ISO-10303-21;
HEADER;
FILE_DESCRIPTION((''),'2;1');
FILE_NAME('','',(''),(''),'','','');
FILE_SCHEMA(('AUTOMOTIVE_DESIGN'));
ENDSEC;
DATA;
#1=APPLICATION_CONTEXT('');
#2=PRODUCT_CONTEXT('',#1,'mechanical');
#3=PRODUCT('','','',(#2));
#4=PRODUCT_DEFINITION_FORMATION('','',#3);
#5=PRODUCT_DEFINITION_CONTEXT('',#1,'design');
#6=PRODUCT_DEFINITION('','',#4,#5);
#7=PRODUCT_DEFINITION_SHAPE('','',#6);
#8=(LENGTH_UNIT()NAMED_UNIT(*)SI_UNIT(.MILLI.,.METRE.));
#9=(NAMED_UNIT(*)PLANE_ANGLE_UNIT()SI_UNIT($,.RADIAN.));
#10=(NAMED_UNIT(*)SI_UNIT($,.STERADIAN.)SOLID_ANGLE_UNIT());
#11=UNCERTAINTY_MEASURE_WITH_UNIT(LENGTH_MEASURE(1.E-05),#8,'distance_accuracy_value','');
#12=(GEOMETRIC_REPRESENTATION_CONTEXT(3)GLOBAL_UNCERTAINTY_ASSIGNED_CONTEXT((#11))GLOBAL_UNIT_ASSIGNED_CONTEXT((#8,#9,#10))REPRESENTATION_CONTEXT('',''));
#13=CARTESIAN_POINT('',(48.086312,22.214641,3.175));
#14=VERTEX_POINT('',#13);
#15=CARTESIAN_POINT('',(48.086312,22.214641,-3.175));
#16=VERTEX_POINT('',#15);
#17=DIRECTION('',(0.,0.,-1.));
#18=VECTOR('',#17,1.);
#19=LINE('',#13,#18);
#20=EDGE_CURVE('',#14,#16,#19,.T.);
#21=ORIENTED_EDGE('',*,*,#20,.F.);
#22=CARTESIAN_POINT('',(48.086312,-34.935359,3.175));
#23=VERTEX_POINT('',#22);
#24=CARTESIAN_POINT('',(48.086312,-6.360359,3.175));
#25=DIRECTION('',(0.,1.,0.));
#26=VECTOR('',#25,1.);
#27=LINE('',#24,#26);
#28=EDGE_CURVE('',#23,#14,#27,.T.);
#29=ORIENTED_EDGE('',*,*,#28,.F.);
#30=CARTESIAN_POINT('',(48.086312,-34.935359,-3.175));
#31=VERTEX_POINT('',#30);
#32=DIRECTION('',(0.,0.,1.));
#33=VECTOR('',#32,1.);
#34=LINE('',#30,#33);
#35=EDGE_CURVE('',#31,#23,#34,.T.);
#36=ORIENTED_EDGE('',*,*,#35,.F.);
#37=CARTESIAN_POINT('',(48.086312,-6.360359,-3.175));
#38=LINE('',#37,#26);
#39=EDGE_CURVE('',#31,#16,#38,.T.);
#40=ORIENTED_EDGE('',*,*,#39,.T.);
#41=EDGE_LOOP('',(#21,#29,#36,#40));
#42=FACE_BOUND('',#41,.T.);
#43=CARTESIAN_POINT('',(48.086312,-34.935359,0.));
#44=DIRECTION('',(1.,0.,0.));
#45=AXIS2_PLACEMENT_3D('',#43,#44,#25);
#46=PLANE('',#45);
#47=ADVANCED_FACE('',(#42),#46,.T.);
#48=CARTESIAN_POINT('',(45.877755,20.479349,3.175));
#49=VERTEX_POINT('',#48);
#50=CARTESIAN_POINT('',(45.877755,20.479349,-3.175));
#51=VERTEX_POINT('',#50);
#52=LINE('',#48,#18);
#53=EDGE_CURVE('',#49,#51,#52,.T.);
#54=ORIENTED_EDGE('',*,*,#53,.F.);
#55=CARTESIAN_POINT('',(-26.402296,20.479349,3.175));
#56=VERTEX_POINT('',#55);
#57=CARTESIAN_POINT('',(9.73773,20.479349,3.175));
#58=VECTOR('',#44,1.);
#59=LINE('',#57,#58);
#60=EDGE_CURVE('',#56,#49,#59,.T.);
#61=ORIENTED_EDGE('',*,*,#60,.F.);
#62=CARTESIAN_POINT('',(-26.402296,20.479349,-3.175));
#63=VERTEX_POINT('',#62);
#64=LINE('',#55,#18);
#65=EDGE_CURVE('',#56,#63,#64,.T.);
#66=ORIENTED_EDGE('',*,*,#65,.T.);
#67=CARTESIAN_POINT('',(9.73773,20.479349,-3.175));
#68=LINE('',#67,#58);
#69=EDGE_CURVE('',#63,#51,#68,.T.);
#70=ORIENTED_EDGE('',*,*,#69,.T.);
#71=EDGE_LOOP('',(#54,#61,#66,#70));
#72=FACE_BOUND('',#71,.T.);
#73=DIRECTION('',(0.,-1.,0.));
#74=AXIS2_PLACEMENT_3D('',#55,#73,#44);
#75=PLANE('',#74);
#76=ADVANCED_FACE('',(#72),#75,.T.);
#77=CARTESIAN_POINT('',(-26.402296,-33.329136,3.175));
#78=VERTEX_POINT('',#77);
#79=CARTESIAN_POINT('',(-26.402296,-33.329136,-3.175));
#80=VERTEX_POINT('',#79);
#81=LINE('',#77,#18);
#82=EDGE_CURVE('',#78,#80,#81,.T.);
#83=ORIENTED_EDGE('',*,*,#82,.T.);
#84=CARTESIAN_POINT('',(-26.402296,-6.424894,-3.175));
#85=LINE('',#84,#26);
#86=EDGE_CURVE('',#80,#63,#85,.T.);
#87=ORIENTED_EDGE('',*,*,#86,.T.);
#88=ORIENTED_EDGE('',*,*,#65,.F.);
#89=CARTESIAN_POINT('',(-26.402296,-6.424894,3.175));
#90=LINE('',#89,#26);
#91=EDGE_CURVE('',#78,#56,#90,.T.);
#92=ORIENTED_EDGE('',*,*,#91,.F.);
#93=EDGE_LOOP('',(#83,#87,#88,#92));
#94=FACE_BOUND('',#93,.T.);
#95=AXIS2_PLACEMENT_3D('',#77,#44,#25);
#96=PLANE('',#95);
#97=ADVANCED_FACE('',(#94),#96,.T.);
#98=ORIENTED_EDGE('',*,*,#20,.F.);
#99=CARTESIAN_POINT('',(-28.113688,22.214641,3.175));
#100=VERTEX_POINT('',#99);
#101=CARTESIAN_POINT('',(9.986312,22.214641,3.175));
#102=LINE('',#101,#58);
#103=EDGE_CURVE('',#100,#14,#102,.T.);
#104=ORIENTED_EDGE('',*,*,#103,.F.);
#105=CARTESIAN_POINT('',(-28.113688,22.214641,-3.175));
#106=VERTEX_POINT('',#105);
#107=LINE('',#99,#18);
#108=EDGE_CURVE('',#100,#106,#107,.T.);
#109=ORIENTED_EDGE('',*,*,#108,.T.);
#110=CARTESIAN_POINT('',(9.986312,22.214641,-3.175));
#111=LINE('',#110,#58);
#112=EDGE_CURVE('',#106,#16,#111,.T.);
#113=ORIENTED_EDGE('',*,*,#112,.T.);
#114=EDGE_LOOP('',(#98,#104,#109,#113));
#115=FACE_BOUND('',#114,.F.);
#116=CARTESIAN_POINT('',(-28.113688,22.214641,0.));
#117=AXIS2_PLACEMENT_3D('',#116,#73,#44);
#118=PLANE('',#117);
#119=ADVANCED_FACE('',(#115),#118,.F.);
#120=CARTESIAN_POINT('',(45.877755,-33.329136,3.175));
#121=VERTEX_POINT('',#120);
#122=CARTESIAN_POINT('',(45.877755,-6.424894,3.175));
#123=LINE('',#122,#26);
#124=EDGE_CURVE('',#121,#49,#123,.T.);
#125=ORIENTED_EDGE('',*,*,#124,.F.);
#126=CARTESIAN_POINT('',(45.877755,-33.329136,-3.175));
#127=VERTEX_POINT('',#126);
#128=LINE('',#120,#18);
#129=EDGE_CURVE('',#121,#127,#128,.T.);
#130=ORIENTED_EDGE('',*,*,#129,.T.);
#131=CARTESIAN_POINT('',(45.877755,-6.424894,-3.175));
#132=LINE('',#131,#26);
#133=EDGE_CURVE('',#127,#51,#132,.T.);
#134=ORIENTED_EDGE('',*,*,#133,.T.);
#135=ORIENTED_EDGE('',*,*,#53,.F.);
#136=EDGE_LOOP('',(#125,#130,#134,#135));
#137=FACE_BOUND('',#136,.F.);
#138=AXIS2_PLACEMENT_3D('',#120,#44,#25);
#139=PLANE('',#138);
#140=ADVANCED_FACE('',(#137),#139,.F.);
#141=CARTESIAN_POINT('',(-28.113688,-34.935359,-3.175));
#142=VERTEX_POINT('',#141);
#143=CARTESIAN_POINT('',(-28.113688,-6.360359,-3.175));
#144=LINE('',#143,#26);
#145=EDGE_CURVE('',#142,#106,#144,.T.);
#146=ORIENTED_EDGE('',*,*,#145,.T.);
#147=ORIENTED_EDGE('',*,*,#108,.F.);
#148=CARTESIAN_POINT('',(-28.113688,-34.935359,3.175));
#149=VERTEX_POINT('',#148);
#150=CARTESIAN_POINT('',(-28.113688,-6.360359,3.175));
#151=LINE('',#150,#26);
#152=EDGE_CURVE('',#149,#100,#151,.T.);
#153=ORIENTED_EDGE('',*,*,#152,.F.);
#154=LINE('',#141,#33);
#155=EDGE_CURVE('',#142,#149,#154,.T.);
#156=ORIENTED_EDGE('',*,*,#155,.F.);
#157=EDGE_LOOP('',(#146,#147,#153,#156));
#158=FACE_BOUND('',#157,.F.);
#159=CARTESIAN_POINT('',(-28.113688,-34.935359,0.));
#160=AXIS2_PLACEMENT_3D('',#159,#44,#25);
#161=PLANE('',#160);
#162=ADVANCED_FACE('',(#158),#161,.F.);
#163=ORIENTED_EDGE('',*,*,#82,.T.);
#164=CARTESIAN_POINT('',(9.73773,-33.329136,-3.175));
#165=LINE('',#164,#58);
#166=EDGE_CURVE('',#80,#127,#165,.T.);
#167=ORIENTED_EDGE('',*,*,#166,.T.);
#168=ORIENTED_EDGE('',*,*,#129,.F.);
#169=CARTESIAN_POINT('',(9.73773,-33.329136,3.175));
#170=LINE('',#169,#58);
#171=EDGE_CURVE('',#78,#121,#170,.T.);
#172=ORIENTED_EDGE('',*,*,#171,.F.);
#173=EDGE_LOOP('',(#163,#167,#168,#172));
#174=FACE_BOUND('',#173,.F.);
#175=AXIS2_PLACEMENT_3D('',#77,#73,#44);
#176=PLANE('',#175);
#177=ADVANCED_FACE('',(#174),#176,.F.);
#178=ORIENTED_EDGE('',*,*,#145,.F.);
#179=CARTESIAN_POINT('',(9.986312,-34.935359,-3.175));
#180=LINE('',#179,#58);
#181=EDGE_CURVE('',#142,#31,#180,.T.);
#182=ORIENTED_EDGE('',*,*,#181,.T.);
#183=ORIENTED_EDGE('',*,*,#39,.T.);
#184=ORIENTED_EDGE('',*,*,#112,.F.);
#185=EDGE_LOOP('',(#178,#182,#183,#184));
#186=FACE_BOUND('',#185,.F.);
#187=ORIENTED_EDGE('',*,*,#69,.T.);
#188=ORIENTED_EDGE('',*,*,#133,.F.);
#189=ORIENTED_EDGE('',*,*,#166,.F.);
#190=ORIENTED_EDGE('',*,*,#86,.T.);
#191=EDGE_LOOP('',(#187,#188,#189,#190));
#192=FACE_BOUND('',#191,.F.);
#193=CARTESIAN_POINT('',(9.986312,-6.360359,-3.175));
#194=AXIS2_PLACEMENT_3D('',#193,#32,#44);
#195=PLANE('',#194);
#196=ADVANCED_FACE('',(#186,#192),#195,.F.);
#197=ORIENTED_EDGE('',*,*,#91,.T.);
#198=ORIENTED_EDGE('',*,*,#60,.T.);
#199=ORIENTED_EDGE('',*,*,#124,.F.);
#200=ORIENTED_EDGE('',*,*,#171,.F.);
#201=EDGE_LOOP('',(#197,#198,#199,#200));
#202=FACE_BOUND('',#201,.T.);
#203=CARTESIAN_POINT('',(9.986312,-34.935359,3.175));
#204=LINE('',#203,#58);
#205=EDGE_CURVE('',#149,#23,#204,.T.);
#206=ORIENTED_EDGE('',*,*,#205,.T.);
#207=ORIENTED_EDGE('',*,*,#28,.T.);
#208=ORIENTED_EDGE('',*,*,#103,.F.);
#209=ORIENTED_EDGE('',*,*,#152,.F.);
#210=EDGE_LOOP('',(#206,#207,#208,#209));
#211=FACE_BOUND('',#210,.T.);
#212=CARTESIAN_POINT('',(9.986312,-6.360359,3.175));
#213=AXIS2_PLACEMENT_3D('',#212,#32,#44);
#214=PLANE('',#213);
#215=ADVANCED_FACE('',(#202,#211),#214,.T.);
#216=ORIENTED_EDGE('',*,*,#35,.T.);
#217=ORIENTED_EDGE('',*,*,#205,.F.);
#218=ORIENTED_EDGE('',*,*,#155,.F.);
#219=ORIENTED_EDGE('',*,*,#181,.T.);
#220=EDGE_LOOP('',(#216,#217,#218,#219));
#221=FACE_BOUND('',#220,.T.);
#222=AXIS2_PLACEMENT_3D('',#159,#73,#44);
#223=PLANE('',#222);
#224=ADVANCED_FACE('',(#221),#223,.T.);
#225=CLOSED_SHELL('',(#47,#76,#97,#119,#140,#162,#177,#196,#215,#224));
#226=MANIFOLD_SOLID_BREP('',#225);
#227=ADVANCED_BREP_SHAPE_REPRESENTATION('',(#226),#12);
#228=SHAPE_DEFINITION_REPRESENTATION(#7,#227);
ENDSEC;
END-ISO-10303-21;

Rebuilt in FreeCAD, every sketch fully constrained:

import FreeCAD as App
import Part
import Sketcher

V = App.Vector
Q = App.Units.Quantity

doc = App.newDocument("Part")
body = doc.addObject("PartDesign::Body", "Body")

# Sketch on XY plane
sketch1 = body.newObject("Sketcher::SketchObject", "Sketch")
sketch1.AttachmentSupport = (doc.getObject("XY_Plane"), [""])
sketch1.MapMode = "FlatFace"
sketch1.addGeometry([
    Part.LineSegment(V(-28, 22, 0), V(-28, -35, 0)),
    Part.LineSegment(V(-28, -35, 0), V(48, -35, 0)),
    Part.LineSegment(V(48, -35, 0), V(48, 22, 0)),
    Part.LineSegment(V(48, 22, 0), V(-28, 22, 0)),
], False)
sketch1.addConstraint([
    Sketcher.Constraint("Coincident", 0, 2, 1, 1),
    Sketcher.Constraint("Coincident", 1, 2, 2, 1),
    Sketcher.Constraint("Coincident", 2, 2, 3, 1),
    Sketcher.Constraint("Coincident", 3, 2, 0, 1),
    Sketcher.Constraint("Vertical", 0),
    Sketcher.Constraint("Horizontal", 1),
    Sketcher.Constraint("Vertical", 2),
    Sketcher.Constraint("Horizontal", 3),
    Sketcher.Constraint("DistanceX", 1, 1, 1, 2, Q("3 in")),
    Sketcher.Constraint("DistanceY", 0, 2, 0, 1, Q("2.25 in")),
    Sketcher.Constraint("DistanceX", 0, 2, -1, 1, 28.113688),
    Sketcher.Constraint("DistanceY", 0, 2, -1, 1, 34.935359),
])
pad1 = body.newObject("PartDesign::Pad", "Pad")
pad1.Profile = sketch1
pad1.Length = Q("0.25 in")
pad1.Midplane = True

# Sketch on XY plane
sketch2 = body.newObject("Sketcher::SketchObject", "Sketch001")
sketch2.AttachmentSupport = (doc.getObject("XY_Plane"), [""])
sketch2.MapMode = "FlatFace"
sketch2.AttachmentOffset = App.Placement(V(0, 0, 0.125 * 25.4), App.Rotation())
sketch2.addGeometry([
    Part.LineSegment(V(-26, 20, 0), V(-26, -33, 0)),
    Part.LineSegment(V(-26, -33, 0), V(46, -33, 0)),
    Part.LineSegment(V(46, -33, 0), V(46, 20, 0)),
    Part.LineSegment(V(46, 20, 0), V(-26, 20, 0)),
], False)
sketch2.addConstraint([
    Sketcher.Constraint("Coincident", 0, 2, 1, 1),
    Sketcher.Constraint("Coincident", 1, 2, 2, 1),
    Sketcher.Constraint("Coincident", 2, 2, 3, 1),
    Sketcher.Constraint("Coincident", 3, 2, 0, 1),
    Sketcher.Constraint("Vertical", 0),
    Sketcher.Constraint("Horizontal", 1),
    Sketcher.Constraint("Vertical", 2),
    Sketcher.Constraint("Horizontal", 3),
    Sketcher.Constraint("DistanceX", 1, 1, 1, 2, 72.280051),
    Sketcher.Constraint("DistanceY", 0, 2, 0, 1, 53.808485),
    Sketcher.Constraint("DistanceY", -1, 1, 2, 2, 20.479349),
    Sketcher.Constraint("DistanceX", 0, 2, -1, 1, 26.402296),
])
pocket1 = body.newObject("PartDesign::Pocket", "Pocket")
pocket1.Profile = sketch2
pocket1.Type = "ThroughAll"

doc.recompute()
